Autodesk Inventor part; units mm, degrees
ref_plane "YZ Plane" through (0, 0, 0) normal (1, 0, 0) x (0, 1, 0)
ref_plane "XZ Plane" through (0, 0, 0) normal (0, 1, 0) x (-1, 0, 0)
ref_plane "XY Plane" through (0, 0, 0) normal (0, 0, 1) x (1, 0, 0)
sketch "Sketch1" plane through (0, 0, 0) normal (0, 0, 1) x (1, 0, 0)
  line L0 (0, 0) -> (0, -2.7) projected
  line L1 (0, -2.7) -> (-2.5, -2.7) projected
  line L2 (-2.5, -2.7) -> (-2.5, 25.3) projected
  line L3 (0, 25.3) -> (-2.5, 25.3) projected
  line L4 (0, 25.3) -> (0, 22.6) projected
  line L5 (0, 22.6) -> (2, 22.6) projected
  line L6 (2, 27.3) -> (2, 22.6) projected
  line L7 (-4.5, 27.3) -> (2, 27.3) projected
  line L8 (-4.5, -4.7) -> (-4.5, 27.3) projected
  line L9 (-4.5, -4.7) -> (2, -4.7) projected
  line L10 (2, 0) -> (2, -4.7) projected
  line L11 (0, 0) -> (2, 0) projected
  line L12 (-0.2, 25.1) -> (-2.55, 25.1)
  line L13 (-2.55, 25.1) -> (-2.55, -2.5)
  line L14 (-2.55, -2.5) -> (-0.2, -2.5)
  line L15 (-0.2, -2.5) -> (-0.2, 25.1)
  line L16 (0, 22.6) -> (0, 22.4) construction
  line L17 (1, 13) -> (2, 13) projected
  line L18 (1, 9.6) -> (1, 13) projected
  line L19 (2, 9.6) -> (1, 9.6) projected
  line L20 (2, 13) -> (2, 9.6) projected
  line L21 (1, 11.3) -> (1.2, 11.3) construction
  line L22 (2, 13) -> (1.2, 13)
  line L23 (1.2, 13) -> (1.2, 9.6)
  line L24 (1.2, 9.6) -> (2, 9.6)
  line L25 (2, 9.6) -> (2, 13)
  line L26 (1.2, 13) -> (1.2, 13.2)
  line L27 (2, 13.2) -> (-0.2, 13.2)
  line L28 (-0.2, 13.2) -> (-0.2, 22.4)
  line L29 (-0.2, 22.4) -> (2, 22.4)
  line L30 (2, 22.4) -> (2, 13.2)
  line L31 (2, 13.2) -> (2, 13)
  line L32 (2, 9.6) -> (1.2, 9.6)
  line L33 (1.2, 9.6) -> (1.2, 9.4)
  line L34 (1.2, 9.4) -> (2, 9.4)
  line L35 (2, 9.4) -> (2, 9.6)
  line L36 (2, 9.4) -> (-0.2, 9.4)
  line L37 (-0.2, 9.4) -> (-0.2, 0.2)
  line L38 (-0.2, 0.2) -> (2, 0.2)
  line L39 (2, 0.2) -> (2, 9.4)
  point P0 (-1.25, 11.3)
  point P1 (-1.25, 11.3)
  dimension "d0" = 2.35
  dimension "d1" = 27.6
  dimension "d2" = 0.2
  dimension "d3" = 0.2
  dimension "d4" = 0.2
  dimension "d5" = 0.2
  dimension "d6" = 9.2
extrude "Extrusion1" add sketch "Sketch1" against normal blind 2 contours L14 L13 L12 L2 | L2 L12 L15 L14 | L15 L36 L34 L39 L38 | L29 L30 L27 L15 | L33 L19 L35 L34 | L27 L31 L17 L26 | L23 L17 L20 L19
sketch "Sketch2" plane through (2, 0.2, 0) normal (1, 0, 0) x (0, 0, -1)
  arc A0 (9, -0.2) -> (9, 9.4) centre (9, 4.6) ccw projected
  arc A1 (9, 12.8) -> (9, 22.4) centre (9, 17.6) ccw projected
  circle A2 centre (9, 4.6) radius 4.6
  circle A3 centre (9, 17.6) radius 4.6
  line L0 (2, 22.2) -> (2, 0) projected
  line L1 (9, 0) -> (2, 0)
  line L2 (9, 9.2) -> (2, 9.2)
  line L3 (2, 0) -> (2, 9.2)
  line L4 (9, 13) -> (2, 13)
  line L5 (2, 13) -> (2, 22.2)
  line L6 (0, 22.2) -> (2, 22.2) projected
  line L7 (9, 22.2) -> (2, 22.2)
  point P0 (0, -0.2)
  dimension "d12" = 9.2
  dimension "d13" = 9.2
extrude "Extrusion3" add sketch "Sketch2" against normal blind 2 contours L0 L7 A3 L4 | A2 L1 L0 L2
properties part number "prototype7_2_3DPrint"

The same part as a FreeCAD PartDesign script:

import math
import FreeCAD as App
import Part
import Sketcher
from FreeCAD import Vector


def add_polygon(sketch, points):
    """Adds a closed chain of lines whose ends are joined by coincident constraints."""
    first, n = sketch.GeometryCount, len(points)
    for a, b in zip(points, points[1:] + points[:1]):
        sketch.addGeometry(Part.LineSegment(App.Vector(*a, 0), App.Vector(*b, 0)), False)
    for i in range(n):
        sketch.addConstraint(Sketcher.Constraint("Coincident", first + i, 2, first + (i + 1) % n, 1))

doc = App.newDocument("Part")
body = doc.addObject("PartDesign::Body", "Body")

sketch1 = doc.addObject("Sketcher::SketchObject", "Sketch")
body.addObject(sketch1)
sketch1.AttachmentSupport = (doc.XY_Plane, [""])
sketch1.MapMode = "FlatFace"
add_polygon(sketch1, [(-2.5, -2.5), (-0.2, -2.5), (-0.2, 0.2), (2, 0.2), (2, 22.4), (-0.2, 22.4), (-0.2, 25.1), (-2.5, 25.1)])
add_polygon(sketch1, [(-0.2, 9.4), (-0.2, 13.2), (1.2, 13.2), (1.2, 9.4)])
sketch1.addConstraint([
    Sketcher.Constraint("Horizontal", 0),
    Sketcher.Constraint("Vertical", 1),
    Sketcher.Constraint("Horizontal", 2),
    Sketcher.Constraint("Vertical", 3),
    Sketcher.Constraint("Horizontal", 4),
    Sketcher.Constraint("Vertical", 5),
    Sketcher.Constraint("Horizontal", 6),
    Sketcher.Constraint("Vertical", 7),
    Sketcher.Constraint("Vertical", 8),
    Sketcher.Constraint("Horizontal", 9),
    Sketcher.Constraint("Vertical", 10),
    Sketcher.Constraint("Horizontal", 11),
    Sketcher.Constraint("Vertical", 1, 2, 4, 2),
    Sketcher.Constraint("Vertical", 5, 2, 8, 2),
    Sketcher.Constraint("Equal", 1, 5),
    Sketcher.Constraint("DistanceY", 7, 2, 7, 1, 27.6),
    Sketcher.Constraint("DistanceX", 0, 1, 0, 2, 2.35),
    Sketcher.Constraint("DistanceX", 0, 2, -1, 1, 0.2),
    Sketcher.Constraint("DistanceY", -1, 1, 1, 2, 0.2),
    Sketcher.Constraint("DistanceY", 8, 2, 4, 2, 9.2),
    Sketcher.Constraint("DistanceY", 2, 2, 10, 2, 9.2),
    Sketcher.Constraint("DistanceX", 2, 1, 2, 2, 2.2),
    Sketcher.Constraint("DistanceX", 9, 1, 9, 2, 1.4),
    Sketcher.Constraint("DistanceY", 1, 1, 1, 2, 2.7),
])
pad1 = doc.addObject("PartDesign::Pad", "Pad")
body.addObject(pad1)
pad1.Profile = sketch1
pad1.Length = 2
pad1.Reversed = True

sketch2 = doc.addObject("Sketcher::SketchObject", "Sketch001")
body.addObject(sketch2)
sketch2.AttachmentSupport = (doc.YZ_Plane, [""])
sketch2.MapMode = "FlatFace"
sketch2.AttachmentOffset = App.Placement(Vector(0, 0, 2), App.Rotation())
sketch2.addGeometry([
    Part.LineSegment(Vector(22.4, -2, 0), Vector(13.2, -2, 0)),
    Part.LineSegment(Vector(13.2, -2, 0), Vector(13.2, -9, 0)),
    Part.ArcOfCircle(Part.Circle(Vector(17.8, -9, 0), Vector(0, 0, 1), 4.6), math.radians(0), math.radians(180)),
    Part.LineSegment(Vector(22.4, -9, 0), Vector(22.4, -2, 0)),
    Part.ArcOfCircle(Part.Circle(Vector(4.8, -9, 0), Vector(0, 0, 1), 4.6), math.radians(0), math.radians(180)),
    Part.LineSegment(Vector(9.4, -9, 0), Vector(9.4, -2, 0)),
    Part.LineSegment(Vector(9.4, -2, 0), Vector(0.2, -2, 0)),
    Part.LineSegment(Vector(0.2, -2, 0), Vector(0.2, -9, 0)),
], False)
sketch2.addConstraint([
    Sketcher.Constraint("Coincident", 0, 2, 1, 1),
    Sketcher.Constraint("Tangent", 1, 2, 2, 2),
    Sketcher.Constraint("Tangent", 2, 1, 3, 1),
    Sketcher.Constraint("Coincident", 3, 2, 0, 1),
    Sketcher.Constraint("Tangent", 4, 1, 5, 1),
    Sketcher.Constraint("Coincident", 5, 2, 6, 1),
    Sketcher.Constraint("Coincident", 6, 2, 7, 1),
    Sketcher.Constraint("Tangent", 7, 2, 4, 2),
    Sketcher.Constraint("Horizontal", 0),
    Sketcher.Constraint("Vertical", 1),
    Sketcher.Constraint("Vertical", 3),
    Sketcher.Constraint("Vertical", 5),
    Sketcher.Constraint("Horizontal", 6),
    Sketcher.Constraint("Vertical", 7),
    Sketcher.Constraint("Equal", 2, 4),
    Sketcher.Constraint("Horizontal", 2, 3, 4, 3),
    Sketcher.Constraint("Horizontal", 3, 2, 5, 2),
    Sketcher.Constraint("Radius", 2, 4.6),
    Sketcher.Constraint("DistanceY", 1, 2, 1, 1, 7.0),
    Sketcher.Constraint("DistanceY", 2, 3, -1, 1, 9.0),
    Sketcher.Constraint("DistanceX", 4, 3, 2, 3, 13.0),
    Sketcher.Constraint("DistanceX", -1, 1, 2, 3, 17.8),
])
pad2 = doc.addObject("PartDesign::Pad", "Pad001")
body.addObject(pad2)
pad2.Profile = sketch2
pad2.Length = 2
pad2.Reversed = True

doc.recompute()
